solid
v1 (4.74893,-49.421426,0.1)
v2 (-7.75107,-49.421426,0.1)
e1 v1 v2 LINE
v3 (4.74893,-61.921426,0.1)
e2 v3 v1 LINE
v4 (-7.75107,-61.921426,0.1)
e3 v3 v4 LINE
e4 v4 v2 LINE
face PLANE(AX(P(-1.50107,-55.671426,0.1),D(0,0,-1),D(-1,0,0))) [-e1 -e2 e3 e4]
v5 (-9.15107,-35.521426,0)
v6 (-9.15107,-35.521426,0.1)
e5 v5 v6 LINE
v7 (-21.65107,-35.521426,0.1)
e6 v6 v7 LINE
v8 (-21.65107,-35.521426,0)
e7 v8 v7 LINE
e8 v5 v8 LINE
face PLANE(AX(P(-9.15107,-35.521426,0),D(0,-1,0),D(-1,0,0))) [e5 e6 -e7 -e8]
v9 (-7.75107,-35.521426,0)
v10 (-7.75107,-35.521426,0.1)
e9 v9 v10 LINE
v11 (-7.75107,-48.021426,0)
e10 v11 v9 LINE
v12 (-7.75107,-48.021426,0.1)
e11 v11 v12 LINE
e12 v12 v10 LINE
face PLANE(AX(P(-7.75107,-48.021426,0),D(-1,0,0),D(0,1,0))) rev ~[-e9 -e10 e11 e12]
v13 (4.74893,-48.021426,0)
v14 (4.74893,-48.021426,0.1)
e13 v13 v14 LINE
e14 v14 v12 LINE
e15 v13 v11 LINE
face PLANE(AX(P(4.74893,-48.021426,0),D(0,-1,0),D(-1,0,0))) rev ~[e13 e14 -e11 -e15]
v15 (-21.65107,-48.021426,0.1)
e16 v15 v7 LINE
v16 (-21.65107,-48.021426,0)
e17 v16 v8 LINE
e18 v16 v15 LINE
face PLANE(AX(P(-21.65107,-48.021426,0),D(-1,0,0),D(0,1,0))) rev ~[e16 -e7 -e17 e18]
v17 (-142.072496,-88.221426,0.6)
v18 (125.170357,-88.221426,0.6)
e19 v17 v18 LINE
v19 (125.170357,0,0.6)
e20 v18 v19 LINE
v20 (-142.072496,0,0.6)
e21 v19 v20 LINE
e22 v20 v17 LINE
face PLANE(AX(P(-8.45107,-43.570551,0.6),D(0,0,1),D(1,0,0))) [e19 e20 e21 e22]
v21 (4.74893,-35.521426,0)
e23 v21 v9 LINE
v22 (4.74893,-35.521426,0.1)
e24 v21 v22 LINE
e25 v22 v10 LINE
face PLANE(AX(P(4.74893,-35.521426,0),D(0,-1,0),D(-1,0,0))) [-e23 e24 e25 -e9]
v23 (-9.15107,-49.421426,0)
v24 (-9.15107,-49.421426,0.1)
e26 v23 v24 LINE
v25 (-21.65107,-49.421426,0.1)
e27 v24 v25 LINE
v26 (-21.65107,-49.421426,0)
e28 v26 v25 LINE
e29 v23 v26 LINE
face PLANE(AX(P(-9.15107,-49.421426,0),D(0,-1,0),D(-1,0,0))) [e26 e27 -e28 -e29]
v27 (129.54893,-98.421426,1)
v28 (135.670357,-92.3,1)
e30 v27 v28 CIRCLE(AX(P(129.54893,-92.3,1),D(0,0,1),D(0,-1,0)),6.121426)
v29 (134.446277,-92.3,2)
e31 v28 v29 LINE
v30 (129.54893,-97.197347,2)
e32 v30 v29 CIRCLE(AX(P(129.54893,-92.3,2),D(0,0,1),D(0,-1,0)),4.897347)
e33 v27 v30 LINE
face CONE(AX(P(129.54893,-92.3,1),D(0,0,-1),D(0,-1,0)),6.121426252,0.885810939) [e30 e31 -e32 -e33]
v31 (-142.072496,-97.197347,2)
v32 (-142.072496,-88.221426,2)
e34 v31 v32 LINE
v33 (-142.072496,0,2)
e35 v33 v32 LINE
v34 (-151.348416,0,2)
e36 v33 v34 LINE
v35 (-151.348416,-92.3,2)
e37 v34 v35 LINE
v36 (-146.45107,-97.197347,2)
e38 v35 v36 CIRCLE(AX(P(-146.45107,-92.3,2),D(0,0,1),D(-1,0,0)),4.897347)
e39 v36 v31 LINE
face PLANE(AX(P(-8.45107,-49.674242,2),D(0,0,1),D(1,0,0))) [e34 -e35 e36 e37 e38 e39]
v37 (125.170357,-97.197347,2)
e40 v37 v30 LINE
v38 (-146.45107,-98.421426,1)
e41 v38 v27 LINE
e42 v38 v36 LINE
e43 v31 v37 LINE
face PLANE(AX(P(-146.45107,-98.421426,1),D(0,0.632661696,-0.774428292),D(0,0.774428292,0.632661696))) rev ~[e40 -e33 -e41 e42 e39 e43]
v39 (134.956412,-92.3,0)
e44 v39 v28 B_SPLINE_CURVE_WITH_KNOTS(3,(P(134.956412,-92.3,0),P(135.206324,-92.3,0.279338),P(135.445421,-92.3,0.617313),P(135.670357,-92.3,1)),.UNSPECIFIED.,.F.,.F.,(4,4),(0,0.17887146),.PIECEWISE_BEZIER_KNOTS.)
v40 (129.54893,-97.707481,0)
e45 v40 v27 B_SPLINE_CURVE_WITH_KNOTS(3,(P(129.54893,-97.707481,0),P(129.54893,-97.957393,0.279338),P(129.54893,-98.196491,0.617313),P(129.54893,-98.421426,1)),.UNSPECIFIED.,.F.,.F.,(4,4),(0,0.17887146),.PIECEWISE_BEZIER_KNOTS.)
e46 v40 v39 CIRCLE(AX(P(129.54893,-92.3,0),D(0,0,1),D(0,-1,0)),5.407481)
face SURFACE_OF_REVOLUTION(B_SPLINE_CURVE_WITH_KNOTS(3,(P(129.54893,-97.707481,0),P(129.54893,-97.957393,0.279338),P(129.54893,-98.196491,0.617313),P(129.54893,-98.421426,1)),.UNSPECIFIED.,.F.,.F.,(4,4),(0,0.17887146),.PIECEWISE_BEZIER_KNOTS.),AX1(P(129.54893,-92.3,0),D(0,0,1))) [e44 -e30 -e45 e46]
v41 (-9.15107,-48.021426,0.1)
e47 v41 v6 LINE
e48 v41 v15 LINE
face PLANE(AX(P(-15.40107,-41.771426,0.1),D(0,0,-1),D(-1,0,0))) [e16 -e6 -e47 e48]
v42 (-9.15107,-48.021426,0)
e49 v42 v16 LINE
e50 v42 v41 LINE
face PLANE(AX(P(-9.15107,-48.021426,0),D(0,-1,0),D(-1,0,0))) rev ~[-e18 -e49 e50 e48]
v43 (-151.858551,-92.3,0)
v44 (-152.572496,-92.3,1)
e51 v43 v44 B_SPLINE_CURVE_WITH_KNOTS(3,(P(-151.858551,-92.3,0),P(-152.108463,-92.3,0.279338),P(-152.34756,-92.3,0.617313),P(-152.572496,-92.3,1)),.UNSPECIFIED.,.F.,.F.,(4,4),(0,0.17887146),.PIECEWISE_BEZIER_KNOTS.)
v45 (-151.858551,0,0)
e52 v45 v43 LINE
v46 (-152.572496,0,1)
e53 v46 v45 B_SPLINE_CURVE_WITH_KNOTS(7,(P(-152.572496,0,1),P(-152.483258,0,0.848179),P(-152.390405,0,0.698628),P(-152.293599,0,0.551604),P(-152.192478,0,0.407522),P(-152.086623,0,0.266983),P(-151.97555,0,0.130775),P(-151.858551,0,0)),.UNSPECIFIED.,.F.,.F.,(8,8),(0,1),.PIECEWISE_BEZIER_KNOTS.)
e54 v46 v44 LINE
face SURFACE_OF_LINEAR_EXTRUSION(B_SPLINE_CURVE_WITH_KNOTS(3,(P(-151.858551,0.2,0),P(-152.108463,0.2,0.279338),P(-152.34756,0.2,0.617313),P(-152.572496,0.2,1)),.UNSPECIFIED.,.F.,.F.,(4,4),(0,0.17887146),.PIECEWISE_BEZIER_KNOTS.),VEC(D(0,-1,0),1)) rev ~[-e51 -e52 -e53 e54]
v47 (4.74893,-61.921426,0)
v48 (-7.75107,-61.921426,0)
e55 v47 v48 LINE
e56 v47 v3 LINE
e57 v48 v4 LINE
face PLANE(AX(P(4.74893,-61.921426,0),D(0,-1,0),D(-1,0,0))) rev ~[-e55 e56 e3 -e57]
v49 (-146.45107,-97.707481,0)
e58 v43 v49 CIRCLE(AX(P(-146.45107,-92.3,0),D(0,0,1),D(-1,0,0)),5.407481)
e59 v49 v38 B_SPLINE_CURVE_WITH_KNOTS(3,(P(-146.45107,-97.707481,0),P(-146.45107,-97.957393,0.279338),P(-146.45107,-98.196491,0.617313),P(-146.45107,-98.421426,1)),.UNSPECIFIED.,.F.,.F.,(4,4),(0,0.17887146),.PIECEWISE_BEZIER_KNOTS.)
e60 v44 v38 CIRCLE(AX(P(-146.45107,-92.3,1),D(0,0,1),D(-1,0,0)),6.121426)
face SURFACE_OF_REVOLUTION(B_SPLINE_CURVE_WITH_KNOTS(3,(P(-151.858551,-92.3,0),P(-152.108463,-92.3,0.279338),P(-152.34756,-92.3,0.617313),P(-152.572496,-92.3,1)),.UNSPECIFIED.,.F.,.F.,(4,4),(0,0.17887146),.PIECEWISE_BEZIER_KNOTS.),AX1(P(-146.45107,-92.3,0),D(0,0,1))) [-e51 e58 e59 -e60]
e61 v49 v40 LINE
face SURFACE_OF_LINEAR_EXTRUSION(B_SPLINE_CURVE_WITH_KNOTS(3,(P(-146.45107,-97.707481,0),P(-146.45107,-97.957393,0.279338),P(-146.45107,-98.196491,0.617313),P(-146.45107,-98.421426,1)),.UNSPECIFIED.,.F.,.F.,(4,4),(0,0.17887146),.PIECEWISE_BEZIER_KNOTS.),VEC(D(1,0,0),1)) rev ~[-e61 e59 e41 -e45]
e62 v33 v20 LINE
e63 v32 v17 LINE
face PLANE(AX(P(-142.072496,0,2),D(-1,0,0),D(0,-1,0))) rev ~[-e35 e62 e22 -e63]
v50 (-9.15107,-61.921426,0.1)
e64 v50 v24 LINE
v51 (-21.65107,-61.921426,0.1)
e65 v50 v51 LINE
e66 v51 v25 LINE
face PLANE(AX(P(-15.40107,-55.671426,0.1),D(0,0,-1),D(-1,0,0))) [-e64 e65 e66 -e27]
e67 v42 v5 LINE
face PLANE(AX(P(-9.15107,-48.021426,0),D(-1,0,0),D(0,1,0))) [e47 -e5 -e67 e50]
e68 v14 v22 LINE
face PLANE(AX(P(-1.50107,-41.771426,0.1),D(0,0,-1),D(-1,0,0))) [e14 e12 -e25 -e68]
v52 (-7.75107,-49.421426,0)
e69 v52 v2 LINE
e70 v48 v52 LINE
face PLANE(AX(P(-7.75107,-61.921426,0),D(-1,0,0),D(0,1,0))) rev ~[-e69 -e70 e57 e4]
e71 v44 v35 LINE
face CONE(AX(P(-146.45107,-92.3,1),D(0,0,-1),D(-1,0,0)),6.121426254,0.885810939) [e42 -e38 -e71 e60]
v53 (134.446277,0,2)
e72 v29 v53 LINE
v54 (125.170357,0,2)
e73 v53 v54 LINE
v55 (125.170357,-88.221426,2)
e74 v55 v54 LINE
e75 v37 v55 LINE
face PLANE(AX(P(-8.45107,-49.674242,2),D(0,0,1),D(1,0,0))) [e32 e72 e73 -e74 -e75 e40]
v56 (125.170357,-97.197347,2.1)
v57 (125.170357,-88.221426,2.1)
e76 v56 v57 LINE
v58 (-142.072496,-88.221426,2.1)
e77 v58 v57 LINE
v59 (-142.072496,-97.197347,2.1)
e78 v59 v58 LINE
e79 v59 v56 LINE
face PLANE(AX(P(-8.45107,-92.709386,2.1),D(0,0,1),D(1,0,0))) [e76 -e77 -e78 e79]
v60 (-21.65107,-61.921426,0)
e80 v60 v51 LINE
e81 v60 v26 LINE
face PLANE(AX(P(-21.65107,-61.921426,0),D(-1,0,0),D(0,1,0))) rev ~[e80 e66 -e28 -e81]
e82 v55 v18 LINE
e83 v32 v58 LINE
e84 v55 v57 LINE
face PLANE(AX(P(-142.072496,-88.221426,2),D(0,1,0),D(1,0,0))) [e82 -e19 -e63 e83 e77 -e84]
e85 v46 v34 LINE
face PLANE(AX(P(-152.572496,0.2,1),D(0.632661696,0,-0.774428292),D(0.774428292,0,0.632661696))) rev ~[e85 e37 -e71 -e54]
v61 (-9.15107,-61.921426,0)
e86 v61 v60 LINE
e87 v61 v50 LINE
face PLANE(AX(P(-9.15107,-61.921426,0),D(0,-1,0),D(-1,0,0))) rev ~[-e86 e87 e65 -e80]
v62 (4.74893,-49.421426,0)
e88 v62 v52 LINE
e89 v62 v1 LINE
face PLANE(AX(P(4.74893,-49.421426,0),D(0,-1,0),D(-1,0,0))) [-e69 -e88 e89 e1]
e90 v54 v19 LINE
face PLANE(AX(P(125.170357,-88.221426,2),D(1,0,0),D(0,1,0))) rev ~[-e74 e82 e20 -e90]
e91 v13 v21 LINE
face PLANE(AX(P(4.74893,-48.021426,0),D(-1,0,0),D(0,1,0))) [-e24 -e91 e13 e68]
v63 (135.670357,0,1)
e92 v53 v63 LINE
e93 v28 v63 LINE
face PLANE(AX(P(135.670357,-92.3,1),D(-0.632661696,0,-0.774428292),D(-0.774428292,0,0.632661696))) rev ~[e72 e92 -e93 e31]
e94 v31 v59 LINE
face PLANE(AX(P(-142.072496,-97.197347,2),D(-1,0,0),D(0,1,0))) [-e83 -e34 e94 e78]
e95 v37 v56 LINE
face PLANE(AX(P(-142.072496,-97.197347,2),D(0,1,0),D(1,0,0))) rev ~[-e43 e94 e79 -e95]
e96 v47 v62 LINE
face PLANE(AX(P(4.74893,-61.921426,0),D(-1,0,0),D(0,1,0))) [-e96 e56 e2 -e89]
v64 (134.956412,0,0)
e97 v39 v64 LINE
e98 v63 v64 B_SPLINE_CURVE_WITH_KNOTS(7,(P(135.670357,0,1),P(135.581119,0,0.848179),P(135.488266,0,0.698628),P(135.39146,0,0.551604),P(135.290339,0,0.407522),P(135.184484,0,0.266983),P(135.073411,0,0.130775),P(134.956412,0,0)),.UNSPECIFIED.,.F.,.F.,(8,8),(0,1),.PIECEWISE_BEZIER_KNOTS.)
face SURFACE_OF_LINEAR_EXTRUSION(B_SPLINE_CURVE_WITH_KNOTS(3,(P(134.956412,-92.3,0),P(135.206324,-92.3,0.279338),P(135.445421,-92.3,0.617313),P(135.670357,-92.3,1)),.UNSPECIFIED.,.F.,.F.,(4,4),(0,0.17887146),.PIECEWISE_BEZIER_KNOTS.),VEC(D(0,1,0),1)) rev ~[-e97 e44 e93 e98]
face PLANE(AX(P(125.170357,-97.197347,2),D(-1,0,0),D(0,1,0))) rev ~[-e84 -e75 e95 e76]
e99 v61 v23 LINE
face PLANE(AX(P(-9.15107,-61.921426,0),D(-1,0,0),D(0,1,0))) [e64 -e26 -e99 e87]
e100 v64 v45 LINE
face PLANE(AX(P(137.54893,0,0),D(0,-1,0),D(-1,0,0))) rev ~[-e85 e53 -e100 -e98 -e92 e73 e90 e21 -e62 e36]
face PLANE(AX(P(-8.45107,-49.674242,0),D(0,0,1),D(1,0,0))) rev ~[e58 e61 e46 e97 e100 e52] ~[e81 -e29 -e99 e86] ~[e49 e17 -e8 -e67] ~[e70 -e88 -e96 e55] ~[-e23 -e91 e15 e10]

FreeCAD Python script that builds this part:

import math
import FreeCAD as App
import Part
import Sketcher


def add_polygon(sketch, points):
    """Adds a closed chain of lines whose ends are joined by coincident constraints."""
    first, n = sketch.GeometryCount, len(points)
    for a, b in zip(points, points[1:] + points[:1]):
        sketch.addGeometry(Part.LineSegment(App.Vector(*a, 0), App.Vector(*b, 0)), False)
    for i in range(n):
        sketch.addConstraint(Sketcher.Constraint("Coincident", first + i, 2, first + (i + 1) % n, 1))

doc = App.newDocument("Part")
params = doc.addObject("Spreadsheet::Sheet", "Params")
for row, (alias, value) in enumerate([
    ("sketch1_radius", "8 mm"),
    ("sketch1_width", "276 mm"),
    ("sketch1_height", "92.3 mm"),
    ("pad1_length", "2 mm"),
    ("sketch2_height", "2 mm"),
    ("sketch3_radius", "8 mm"),
    ("sketch3_width", "276 mm"),
    ("sketch3_height", "92.5 mm"),
    ("pocket1_length", "1.4 mm"),
    ("pad2_length", "0.1 mm"),
    ("sketch6_width", "12.5 mm"),
    ("pocket2_length", "0.1 mm"),
], start=1):
    params.set(f"A{row}", alias)
    params.set(f"B{row}", "=" + value)
    params.setAlias(f"B{row}", alias)

body = doc.addObject("PartDesign::Body", "Body")

sketch1 = doc.addObject("Sketcher::SketchObject", "Sketch")
body.addObject(sketch1)
sketch1.AttachmentSupport = (doc.XY_Plane, [""])
sketch1.MapMode = "FlatFace"
sketch1.addGeometry([
    Part.LineSegment(App.Vector(-154.45107, 0, 0), App.Vector(-154.45107, -92.3, 0)),
    Part.ArcOfCircle(Part.Circle(App.Vector(-146.45107, -92.3, 0), App.Vector(0, 0, 1), 8), math.radians(-180), math.radians(-90)),
    Part.LineSegment(App.Vector(-146.45107, -100.3, 0), App.Vector(129.54893, -100.3, 0)),
    Part.ArcOfCircle(Part.Circle(App.Vector(129.54893, -92.3, 0), App.Vector(0, 0, 1), 8), math.radians(-90), math.radians(0)),
    Part.LineSegment(App.Vector(137.54893, -92.3, 0), App.Vector(137.54893, 0, 0)),
    Part.LineSegment(App.Vector(137.54893, 0, 0), App.Vector(-154.45107, 0, 0)),
], False)
sketch1.addConstraint([
    Sketcher.Constraint("Tangent", 0, 2, 1, 1),
    Sketcher.Constraint("Tangent", 1, 2, 2, 1),
    Sketcher.Constraint("Tangent", 2, 2, 3, 1),
    Sketcher.Constraint("Tangent", 3, 2, 4, 1),
    Sketcher.Constraint("Coincident", 4, 2, 5, 1),
    Sketcher.Constraint("Coincident", 5, 2, 0, 1),
    Sketcher.Constraint("Vertical", 0),
    Sketcher.Constraint("Horizontal", 2),
    Sketcher.Constraint("Vertical", 4),
    Sketcher.Constraint("Horizontal", 5),
    Sketcher.Constraint("Equal", 1, 3),
    Sketcher.Constraint("PointOnObject", 4, 2, -1),
    Sketcher.Constraint("Radius", 1, 8.0),
    Sketcher.Constraint("DistanceX", 2, 1, 2, 2, 276.0),
    Sketcher.Constraint("DistanceY", 0, 2, 0, 1, 92.3),
    Sketcher.Constraint("DistanceX", 1, 3, -1, 1, 146.45107),
])
sketch1.setExpression("Constraints[12]", "Params.sketch1_radius")
sketch1.setExpression("Constraints[13]", "Params.sketch1_width")
sketch1.setExpression("Constraints[14]", "Params.sketch1_height")
pad1 = doc.addObject("PartDesign::Pad", "Pad")
body.addObject(pad1)
pad1.Profile = sketch1
pad1.setExpression("Length", "Params.pad1_length")

sketch2 = doc.addObject("Sketcher::SketchObject", "Sketch001")
body.addObject(sketch2)
sketch2.AttachmentSupport = (doc.XZ_Plane, [""])
sketch2.MapMode = "FlatFace"
sketch2.addGeometry([
    Part.LineSegment(App.Vector(135.670357, 1, 0), App.Vector(134.446277, 2, 0)),
    Part.LineSegment(App.Vector(134.446277, 2, 0), App.Vector(147.673145, 2, 0)),
    Part.LineSegment(App.Vector(147.673145, 2, 0), App.Vector(147.673145, 0, 0)),
    Part.LineSegment(App.Vector(147.673145, 0, 0), App.Vector(134.956412, 0, 0)),
    Part.BSplineCurve([App.Vector(134.956412, 0, 0), App.Vector(135.206324, 0.279338, 0), App.Vector(135.445421, 0.617313, 0), App.Vector(135.670357, 1, 0)], [4, 4], [0, 0.17887146], False, 3, [1, 1, 1, 1], False),
], False)
sketch2.addConstraint([
    Sketcher.Constraint("Block", 4),
    Sketcher.Constraint("Coincident", 0, 2, 1, 1),
    Sketcher.Constraint("Coincident", 1, 2, 2, 1),
    Sketcher.Constraint("Coincident", 2, 2, 3, 1),
    Sketcher.Constraint("Coincident", 3, 2, 4, 1),
    Sketcher.Constraint("Coincident", 4, 2, 0, 1),
    Sketcher.Constraint("Horizontal", 1),
    Sketcher.Constraint("Vertical", 2),
    Sketcher.Constraint("Horizontal", 3),
    Sketcher.Constraint("DistanceY", 2, 2, 2, 1, 2.0),
    Sketcher.Constraint("DistanceX", 1, 1, 1, 2, 13.226867),
    Sketcher.Constraint("DistanceX", 3, 2, 3, 1, 12.716733),
])
sketch2.setExpression("Constraints[9]", "Params.sketch2_height")

sketch3 = doc.addObject("Sketcher::SketchObject", "Sketch002")
body.addObject(sketch3)
sketch3.AttachmentSupport = (doc.XY_Plane, [""])
sketch3.MapMode = "FlatFace"
sketch3.addGeometry([
    Part.LineSegment(App.Vector(-154.45107, 0.2, 0), App.Vector(-154.45107, -92.3, 0)),
    Part.ArcOfCircle(Part.Circle(App.Vector(-146.45107, -92.3, 0), App.Vector(0, 0, 1), 8), math.radians(-180), math.radians(-90)),
    Part.LineSegment(App.Vector(-146.45107, -100.3, 0), App.Vector(129.54893, -100.3, 0)),
    Part.ArcOfCircle(Part.Circle(App.Vector(129.54893, -92.3, 0), App.Vector(0, 0, 1), 8), math.radians(-90), math.radians(0)),
    Part.LineSegment(App.Vector(137.54893, -92.3, 0), App.Vector(137.54893, 0.2, 0)),
], False)
sketch3.addConstraint([
    Sketcher.Constraint("Tangent", 0, 2, 1, 1),
    Sketcher.Constraint("Tangent", 1, 2, 2, 1),
    Sketcher.Constraint("Tangent", 2, 2, 3, 1),
    Sketcher.Constraint("Tangent", 3, 2, 4, 1),
    Sketcher.Constraint("Vertical", 0),
    Sketcher.Constraint("Horizontal", 2),
    Sketcher.Constraint("Vertical", 4),
    Sketcher.Constraint("Equal", 1, 3),
    Sketcher.Constraint("Horizontal", 0, 1, 4, 2),
    Sketcher.Constraint("Radius", 1, 8.0),
    Sketcher.Constraint("DistanceX", 2, 1, 2, 2, 276.0),
    Sketcher.Constraint("DistanceY", 0, 2, 0, 1, 92.5),
    Sketcher.Constraint("DistanceY", 1, 3, -1, 1, 92.3),
    Sketcher.Constraint("DistanceX", 1, 3, -1, 1, 146.45107),
])
sketch3.setExpression("Constraints[9]", "Params.sketch3_radius")
sketch3.setExpression("Constraints[10]", "Params.sketch3_width")
sketch3.setExpression("Constraints[11]", "Params.sketch3_height")
doc.recompute()

subtractivepipe = doc.addObject("PartDesign::SubtractivePipe", "SubtractivePipe")
body.addObject(subtractivepipe)
subtractivepipe.Profile = sketch2
subtractivepipe.Spine = (sketch3, ["Edge1", "Edge2", "Edge3", "Edge4", "Edge5"])

sketch4 = doc.addObject("Sketcher::SketchObject", "Sketch003")
body.addObject(sketch4)
sketch4.AttachmentSupport = (doc.XY_Plane, [""])
sketch4.MapMode = "FlatFace"
sketch4.AttachmentOffset = App.Placement(App.Vector(0, 0, 2), App.Rotation())
add_polygon(sketch4, [(-142.072496, 0), (-142.072496, -88.221426), (125.170357, -88.221426), (125.170357, 0)])
sketch4.addConstraint([
    Sketcher.Constraint("Vertical", 0),
    Sketcher.Constraint("Horizontal", 1),
    Sketcher.Constraint("Vertical", 2),
    Sketcher.Constraint("Horizontal", 3),
    Sketcher.Constraint("PointOnObject", 2, 2, -1),
    Sketcher.Constraint("DistanceX", 1, 1, 1, 2, 267.242853),
    Sketcher.Constraint("DistanceY", 0, 2, 0, 1, 88.221426),
    Sketcher.Constraint("DistanceX", 0, 2, -1, 1, 142.072496),
])
pocket1 = doc.addObject("PartDesign::Pocket", "Pocket")
body.addObject(pocket1)
pocket1.Profile = sketch4
pocket1.setExpression("Length", "Params.pocket1_length")

sketch5 = doc.addObject("Sketcher::SketchObject", "Sketch004")
body.addObject(sketch5)
sketch5.AttachmentSupport = (doc.XY_Plane, [""])
sketch5.MapMode = "FlatFace"
sketch5.AttachmentOffset = App.Placement(App.Vector(0, 0, 2), App.Rotation())
add_polygon(sketch5, [(-142.072496, -88.221426), (-142.072496, -97.197347), (125.170357, -97.197347), (125.170357, -88.221426)])
sketch5.addConstraint([
    Sketcher.Constraint("Vertical", 0),
    Sketcher.Constraint("Horizontal", 1),
    Sketcher.Constraint("Vertical", 2),
    Sketcher.Constraint("Horizontal", 3),
    Sketcher.Constraint("DistanceY", 0, 2, 0, 1, 8.97592),
    Sketcher.Constraint("DistanceX", 1, 1, 1, 2, 267.242853),
    Sketcher.Constraint("DistanceX", 0, 2, -1, 1, 142.072496),
    Sketcher.Constraint("DistanceY", 0, 2, -1, 1, 97.197347),
])
pad2 = doc.addObject("PartDesign::Pad", "Pad001")
body.addObject(pad2)
pad2.Profile = sketch5
pad2.setExpression("Length", "Params.pad2_length")

sketch6 = doc.addObject("Sketcher::SketchObject", "Sketch005")
body.addObject(sketch6)
sketch6.AttachmentSupport = (doc.XY_Plane, [""])
sketch6.MapMode = "FlatFace"
add_polygon(sketch6, [(4.74893, -49.421426), (4.74893, -61.921426), (-7.75107, -61.921426), (-7.75107, -49.421426)])
add_polygon(sketch6, [(4.74893, -35.521426), (4.74893, -48.021426), (-7.75107, -48.021426), (-7.75107, -35.521426)])
add_polygon(sketch6, [(-9.15107, -35.521426), (-9.15107, -48.021426), (-21.65107, -48.021426), (-21.65107, -35.521426)])
add_polygon(sketch6, [(-9.15107, -49.421426), (-9.15107, -61.921426), (-21.65107, -61.921426), (-21.65107, -49.421426)])
sketch6.addConstraint([
    Sketcher.Constraint("Vertical", 0),
    Sketcher.Constraint("Horizontal", 1),
    Sketcher.Constraint("Vertical", 2),
    Sketcher.Constraint("Horizontal", 3),
    Sketcher.Constraint("Vertical", 4),
    Sketcher.Constraint("Horizontal", 5),
    Sketcher.Constraint("Vertical", 6),
    Sketcher.Constraint("Horizontal", 7),
    Sketcher.Constraint("Vertical", 8),
    Sketcher.Constraint("Horizontal", 9),
    Sketcher.Constraint("Vertical", 10),
    Sketcher.Constraint("Horizontal", 11),
    Sketcher.Constraint("Vertical", 12),
    Sketcher.Constraint("Horizontal", 13),
    Sketcher.Constraint("Vertical", 14),
    Sketcher.Constraint("Horizontal", 15),
    Sketcher.Constraint("Horizontal", 5, 2, 8, 2),
    Sketcher.Constraint("Horizontal", 7, 2, 10, 2),
    Sketcher.Constraint("Horizontal", 1, 2, 12, 2),
    Sketcher.Constraint("Horizontal", 3, 2, 14, 2),
    Sketcher.Constraint("Vertical", 3, 2, 4, 2),
    Sketcher.Constraint("Vertical", 2, 2, 5, 2),
    Sketcher.Constraint("Vertical", 11, 2, 12, 2),
    Sketcher.Constraint("Vertical", 10, 2, 13, 2),
    Sketcher.Constraint("Equal", 7, 9),
    Sketcher.Constraint("Equal", 15, 0),
    Sketcher.Constraint("Equal", 2, 4),
    Sketcher.Constraint("DistanceX", 1, 2, 1, 1, 12.5),
    Sketcher.Constraint("DistanceY", 3, 2, 4, 2, 1.4),
    Sketcher.Constraint("DistanceX", 8, 2, 5, 2, 1.4),
    Sketcher.Constraint("DistanceX", -1, 1, 0, 2, 4.74893),
    Sketcher.Constraint("DistanceY", 0, 2, -1, 1, 61.921426),
])
sketch6.setExpression("Constraints[43]", "Params.sketch6_width")
pocket2 = doc.addObject("PartDesign::Pocket", "Pocket001")
body.addObject(pocket2)
pocket2.Profile = sketch6
pocket2.setExpression("Length", "Params.pocket2_length")
pocket2.Reversed = True

doc.recompute()
